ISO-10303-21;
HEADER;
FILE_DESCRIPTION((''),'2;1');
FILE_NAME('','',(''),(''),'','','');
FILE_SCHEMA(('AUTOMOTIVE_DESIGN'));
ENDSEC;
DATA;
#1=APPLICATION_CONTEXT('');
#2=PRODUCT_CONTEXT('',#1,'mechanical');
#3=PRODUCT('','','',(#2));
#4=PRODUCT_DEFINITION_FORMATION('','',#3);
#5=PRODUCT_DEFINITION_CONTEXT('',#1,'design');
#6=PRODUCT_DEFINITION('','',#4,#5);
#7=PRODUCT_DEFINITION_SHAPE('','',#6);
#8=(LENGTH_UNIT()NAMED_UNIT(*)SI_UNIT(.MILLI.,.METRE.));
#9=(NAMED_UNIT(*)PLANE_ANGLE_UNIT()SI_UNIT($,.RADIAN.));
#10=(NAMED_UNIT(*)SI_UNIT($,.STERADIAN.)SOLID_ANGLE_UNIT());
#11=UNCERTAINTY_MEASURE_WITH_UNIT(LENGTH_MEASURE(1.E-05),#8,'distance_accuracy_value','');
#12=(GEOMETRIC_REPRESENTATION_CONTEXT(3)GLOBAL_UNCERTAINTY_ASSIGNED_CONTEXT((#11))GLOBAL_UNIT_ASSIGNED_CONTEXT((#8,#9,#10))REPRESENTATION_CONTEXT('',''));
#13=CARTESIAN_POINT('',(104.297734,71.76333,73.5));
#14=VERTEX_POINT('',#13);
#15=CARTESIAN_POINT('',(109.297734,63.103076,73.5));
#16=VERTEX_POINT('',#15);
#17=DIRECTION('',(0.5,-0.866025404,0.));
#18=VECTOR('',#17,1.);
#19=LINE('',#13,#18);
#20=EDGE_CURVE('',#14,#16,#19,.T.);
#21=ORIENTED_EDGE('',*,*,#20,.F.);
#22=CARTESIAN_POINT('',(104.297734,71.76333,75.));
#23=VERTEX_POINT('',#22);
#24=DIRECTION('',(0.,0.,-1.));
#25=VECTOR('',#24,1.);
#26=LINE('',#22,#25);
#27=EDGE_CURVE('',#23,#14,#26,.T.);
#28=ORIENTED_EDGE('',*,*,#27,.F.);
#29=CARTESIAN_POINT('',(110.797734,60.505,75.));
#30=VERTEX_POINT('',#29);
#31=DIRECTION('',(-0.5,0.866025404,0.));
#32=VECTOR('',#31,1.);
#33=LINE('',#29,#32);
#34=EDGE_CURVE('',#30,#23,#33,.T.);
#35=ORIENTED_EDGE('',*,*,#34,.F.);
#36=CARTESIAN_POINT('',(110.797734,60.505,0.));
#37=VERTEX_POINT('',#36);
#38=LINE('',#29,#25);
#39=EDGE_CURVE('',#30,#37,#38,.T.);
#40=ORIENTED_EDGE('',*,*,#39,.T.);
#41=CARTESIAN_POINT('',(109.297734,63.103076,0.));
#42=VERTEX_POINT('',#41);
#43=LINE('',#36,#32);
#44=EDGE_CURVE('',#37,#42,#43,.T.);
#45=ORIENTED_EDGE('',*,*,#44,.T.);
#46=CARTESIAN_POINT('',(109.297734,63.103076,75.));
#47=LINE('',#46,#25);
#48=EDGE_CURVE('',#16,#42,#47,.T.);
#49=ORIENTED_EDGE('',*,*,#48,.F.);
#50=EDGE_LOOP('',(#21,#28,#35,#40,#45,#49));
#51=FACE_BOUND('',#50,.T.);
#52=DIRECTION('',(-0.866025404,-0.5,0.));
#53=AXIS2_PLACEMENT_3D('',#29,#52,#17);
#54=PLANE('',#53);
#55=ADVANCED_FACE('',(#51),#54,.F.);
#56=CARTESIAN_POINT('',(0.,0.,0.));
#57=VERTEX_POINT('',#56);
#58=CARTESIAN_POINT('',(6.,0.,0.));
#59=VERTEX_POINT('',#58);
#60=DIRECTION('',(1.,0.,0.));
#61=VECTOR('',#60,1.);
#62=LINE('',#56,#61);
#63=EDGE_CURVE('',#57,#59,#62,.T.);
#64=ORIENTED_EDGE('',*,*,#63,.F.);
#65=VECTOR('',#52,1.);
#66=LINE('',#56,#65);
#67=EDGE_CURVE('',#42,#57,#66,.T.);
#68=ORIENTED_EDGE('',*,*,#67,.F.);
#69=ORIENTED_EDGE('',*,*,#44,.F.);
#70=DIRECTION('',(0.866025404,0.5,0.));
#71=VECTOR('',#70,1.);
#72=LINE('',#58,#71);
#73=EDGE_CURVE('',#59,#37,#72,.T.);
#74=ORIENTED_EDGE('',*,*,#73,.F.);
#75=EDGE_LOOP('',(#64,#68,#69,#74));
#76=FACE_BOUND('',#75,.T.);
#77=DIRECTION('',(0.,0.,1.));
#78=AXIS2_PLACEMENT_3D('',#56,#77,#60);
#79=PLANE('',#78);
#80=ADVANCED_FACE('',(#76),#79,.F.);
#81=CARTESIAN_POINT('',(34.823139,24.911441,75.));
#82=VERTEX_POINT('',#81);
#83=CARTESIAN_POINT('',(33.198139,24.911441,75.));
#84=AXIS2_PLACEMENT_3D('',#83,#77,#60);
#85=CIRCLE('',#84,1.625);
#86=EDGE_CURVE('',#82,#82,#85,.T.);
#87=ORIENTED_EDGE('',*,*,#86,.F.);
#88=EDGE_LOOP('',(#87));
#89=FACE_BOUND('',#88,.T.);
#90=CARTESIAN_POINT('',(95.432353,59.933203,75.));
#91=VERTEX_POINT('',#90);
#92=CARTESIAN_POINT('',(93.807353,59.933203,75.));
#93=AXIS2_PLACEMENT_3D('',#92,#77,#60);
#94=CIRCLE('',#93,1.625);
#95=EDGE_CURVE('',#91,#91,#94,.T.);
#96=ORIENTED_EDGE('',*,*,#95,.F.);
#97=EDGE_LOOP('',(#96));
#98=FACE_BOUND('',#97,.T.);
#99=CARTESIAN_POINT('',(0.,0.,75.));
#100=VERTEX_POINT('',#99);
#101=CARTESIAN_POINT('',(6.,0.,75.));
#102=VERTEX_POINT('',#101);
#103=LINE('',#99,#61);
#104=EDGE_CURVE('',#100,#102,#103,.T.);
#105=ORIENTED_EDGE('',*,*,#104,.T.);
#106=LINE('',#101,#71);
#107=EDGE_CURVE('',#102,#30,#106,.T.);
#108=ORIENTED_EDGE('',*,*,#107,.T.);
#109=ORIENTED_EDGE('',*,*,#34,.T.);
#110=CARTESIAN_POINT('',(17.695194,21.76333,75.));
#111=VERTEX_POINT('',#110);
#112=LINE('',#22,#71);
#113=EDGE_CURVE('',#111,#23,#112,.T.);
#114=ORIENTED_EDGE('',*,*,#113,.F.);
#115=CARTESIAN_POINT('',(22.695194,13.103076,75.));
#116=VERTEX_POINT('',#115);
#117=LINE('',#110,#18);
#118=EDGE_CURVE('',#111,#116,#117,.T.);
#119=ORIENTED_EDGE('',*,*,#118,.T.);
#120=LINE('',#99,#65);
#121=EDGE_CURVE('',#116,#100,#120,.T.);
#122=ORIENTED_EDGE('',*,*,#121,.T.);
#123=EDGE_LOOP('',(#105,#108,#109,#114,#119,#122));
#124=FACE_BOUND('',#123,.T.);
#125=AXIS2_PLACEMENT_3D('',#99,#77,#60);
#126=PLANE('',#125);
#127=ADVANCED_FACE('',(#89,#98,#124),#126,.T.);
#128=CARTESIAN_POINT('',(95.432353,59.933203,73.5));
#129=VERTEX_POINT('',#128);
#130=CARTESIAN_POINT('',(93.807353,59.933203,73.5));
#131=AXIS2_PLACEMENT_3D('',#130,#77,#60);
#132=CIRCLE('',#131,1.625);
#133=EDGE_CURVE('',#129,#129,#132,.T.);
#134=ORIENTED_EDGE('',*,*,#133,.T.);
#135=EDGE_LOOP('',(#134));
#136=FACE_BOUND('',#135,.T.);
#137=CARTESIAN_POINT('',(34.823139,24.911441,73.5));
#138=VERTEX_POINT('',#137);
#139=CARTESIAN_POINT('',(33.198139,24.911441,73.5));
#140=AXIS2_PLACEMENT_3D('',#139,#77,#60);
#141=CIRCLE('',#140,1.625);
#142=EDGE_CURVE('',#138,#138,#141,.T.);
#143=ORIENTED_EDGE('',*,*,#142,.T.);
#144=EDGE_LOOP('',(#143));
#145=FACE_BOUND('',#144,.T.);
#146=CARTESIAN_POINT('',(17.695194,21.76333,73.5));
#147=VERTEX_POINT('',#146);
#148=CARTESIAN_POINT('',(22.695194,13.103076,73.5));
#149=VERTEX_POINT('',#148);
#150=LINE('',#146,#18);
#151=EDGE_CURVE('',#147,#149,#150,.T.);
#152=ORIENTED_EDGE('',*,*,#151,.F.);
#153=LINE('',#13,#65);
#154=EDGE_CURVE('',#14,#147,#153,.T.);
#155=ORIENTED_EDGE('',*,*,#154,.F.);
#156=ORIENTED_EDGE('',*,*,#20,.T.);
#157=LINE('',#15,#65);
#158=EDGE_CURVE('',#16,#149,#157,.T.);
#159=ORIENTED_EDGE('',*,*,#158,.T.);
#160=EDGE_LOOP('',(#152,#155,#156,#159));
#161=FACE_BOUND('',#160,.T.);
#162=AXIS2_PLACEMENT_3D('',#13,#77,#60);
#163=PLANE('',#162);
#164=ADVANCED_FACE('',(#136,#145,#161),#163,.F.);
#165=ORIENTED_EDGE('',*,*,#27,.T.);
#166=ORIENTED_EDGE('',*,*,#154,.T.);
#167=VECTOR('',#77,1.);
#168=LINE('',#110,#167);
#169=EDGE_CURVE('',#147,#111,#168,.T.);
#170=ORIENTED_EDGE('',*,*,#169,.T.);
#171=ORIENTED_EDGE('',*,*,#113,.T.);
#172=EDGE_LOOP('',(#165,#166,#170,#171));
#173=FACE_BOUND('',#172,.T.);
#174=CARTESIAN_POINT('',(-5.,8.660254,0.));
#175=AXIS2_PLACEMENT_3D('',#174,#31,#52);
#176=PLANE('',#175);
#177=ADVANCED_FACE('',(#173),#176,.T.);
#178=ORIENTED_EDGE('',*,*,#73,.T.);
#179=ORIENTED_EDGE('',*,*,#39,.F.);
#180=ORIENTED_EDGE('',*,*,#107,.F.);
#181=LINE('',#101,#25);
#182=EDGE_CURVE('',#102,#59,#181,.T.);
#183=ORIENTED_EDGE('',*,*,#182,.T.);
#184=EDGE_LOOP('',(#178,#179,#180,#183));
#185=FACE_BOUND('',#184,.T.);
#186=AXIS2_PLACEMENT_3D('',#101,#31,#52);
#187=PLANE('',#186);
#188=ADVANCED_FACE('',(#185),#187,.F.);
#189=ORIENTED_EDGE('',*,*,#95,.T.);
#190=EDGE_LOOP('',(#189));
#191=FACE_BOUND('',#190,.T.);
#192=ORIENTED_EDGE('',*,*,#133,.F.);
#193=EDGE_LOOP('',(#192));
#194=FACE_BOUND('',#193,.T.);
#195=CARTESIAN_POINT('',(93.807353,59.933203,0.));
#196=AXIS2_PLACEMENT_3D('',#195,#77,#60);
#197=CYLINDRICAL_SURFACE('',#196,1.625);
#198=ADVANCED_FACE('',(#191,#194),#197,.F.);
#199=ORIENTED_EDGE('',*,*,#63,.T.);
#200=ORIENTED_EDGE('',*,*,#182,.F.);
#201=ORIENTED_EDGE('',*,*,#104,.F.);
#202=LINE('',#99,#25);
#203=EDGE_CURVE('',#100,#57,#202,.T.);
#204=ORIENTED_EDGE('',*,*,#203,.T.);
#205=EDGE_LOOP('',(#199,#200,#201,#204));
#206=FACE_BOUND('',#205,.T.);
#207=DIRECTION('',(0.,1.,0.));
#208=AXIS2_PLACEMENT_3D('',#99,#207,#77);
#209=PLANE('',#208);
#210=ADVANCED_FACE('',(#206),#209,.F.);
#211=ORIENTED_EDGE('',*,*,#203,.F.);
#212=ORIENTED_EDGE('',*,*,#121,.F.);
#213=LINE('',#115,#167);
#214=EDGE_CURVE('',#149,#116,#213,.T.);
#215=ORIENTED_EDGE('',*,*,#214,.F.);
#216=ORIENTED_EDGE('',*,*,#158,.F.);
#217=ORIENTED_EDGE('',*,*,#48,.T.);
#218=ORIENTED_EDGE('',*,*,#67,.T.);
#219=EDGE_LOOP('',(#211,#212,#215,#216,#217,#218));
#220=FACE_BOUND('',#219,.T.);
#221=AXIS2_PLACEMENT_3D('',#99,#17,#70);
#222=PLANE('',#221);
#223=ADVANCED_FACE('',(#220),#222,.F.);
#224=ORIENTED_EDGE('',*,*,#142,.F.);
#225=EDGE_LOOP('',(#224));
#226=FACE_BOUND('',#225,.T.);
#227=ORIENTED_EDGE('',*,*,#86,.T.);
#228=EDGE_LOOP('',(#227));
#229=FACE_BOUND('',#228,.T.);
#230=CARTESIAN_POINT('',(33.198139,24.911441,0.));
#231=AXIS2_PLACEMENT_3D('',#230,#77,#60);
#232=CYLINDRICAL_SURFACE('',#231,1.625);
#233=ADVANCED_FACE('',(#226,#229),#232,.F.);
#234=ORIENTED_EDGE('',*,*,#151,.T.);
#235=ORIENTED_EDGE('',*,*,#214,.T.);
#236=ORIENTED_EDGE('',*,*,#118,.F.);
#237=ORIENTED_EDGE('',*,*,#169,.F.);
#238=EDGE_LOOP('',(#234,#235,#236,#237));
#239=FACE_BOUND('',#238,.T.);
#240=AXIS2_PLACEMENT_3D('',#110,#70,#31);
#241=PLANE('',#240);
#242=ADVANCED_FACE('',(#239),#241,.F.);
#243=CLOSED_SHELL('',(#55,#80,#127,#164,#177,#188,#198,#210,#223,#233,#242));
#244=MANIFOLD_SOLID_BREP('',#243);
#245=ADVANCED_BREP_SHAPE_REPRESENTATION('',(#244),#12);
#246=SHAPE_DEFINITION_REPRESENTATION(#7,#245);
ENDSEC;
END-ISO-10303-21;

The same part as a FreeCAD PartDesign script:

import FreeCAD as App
import Part
import Sketcher
Q = App.Units.Quantity

doc = App.newDocument("Part")
params = doc.addObject("Spreadsheet::Sheet", "Params")
for row, (alias, value) in enumerate([
    ("sketch1_width", "6 mm"),
    ("sketch1_length", "121.01 mm"),
    ("pad1_length", "75 mm"),
    ("sketch2_width", "100 mm"),
    ("sketch2_height", "1.5 mm"),
    ("pad2_length", "10 mm"),
    ("sketch3_diameter", "3.25 mm"),
], start=1):
    params.set(f"A{row}", alias)
    params.set(f"B{row}", "=" + value)
    params.setAlias(f"B{row}", alias)

body = doc.addObject("PartDesign::Body", "Body")

# Sketch on XY plane
sketch1 = body.newObject("Sketcher::SketchObject", "Sketch")
sketch1.AttachmentSupport = (doc.getObject("XY_Plane"), [""])
sketch1.MapMode = "FlatFace"
sketch1.addGeometry([
    Part.LineSegment(App.Vector(0, 0, 0), App.Vector(6, 0, 0)),
    Part.LineSegment(App.Vector(6, 0, 0), App.Vector(110.8, 60.5, 0)),
    Part.LineSegment(App.Vector(110.8, 60.5, 0), App.Vector(109.3, 63.1, 0)),
    Part.LineSegment(App.Vector(109.3, 63.1, 0), App.Vector(0, 0, 0)),
], False)
sketch1.addConstraint([
    Sketcher.Constraint("Coincident", 0, 2, 1, 1),
    Sketcher.Constraint("Coincident", 1, 2, 2, 1),
    Sketcher.Constraint("Coincident", 2, 2, 3, 1),
    Sketcher.Constraint("Coincident", 3, 2, 0, 1),
    Sketcher.Constraint("Horizontal", 0),
    Sketcher.Constraint("Coincident", 3, 2, -1, 1),
    Sketcher.Constraint("Perpendicular", 1, 2),
    Sketcher.Constraint("Perpendicular", 2, 3),
    Sketcher.Constraint("DistanceX", 0, 1, 0, 2, 6.0),
    Sketcher.Constraint("Angle", 1, Q("30 deg")),
    Sketcher.Constraint("Distance", 1, 121.01),
])
sketch1.setExpression("Constraints[8]", "Params.sketch1_width")
sketch1.setExpression("Constraints[10]", "Params.sketch1_length")
pad1 = body.newObject("PartDesign::Pad", "Pad")
pad1.Profile = sketch1
pad1.setExpression("Length", "Params.pad1_length")

# Sketch on an angled plane
sketch2 = body.newObject("Sketcher::SketchObject", "Sketch001")
sketch2.Placement = App.Placement(App.Vector(0, 0, 0), App.Rotation(App.Vector(0.866025404, 0.5, 0), App.Vector(0, 0, -1), App.Vector(-0.5, 0.866025404, 0), "ZXY"))
sketch2.addGeometry([
    Part.LineSegment(App.Vector(26.2, -73.5, 0), App.Vector(26.2, -75, 0)),
    Part.LineSegment(App.Vector(26.2, -75, 0), App.Vector(126.2, -75, 0)),
    Part.LineSegment(App.Vector(126.2, -75, 0), App.Vector(126.2, -73.5, 0)),
    Part.LineSegment(App.Vector(126.2, -73.5, 0), App.Vector(26.2, -73.5, 0)),
], False)
sketch2.addConstraint([
    Sketcher.Constraint("Coincident", 0, 2, 1, 1),
    Sketcher.Constraint("Coincident", 1, 2, 2, 1),
    Sketcher.Constraint("Coincident", 2, 2, 3, 1),
    Sketcher.Constraint("Coincident", 3, 2, 0, 1),
    Sketcher.Constraint("Vertical", 0),
    Sketcher.Constraint("Horizontal", 1),
    Sketcher.Constraint("Vertical", 2),
    Sketcher.Constraint("Horizontal", 3),
    Sketcher.Constraint("DistanceX", 1, 1, 1, 2, 100.0),
    Sketcher.Constraint("DistanceY", 0, 2, 0, 1, 1.5),
    Sketcher.Constraint("DistanceY", 0, 2, -1, 1, 75.0),
    Sketcher.Constraint("DistanceX", -1, 1, 0, 2, 26.206152),
])
sketch2.setExpression("Constraints[8]", "Params.sketch2_width")
sketch2.setExpression("Constraints[9]", "Params.sketch2_height")
pad2 = body.newObject("PartDesign::Pad", "Pad001")
pad2.Profile = sketch2
pad2.setExpression("Length", "Params.pad2_length")

# Sketch on XY plane
sketch3 = body.newObject("Sketcher::SketchObject", "Sketch002")
sketch3.AttachmentSupport = (doc.getObject("XY_Plane"), [""])
sketch3.MapMode = "FlatFace"
sketch3.AttachmentOffset = App.Placement(App.Vector(0, 0, 75), App.Rotation())
sketch3.addGeometry([
    Part.Circle(App.Vector(33.2, 24.9, 0), App.Vector(0, 0, 1), 1.6),
    Part.Circle(App.Vector(93.8, 59.9, 0), App.Vector(0, 0, 1), 1.6),
], False)
sketch3.addConstraint([
    Sketcher.Constraint("Equal", 0, 1),
    Sketcher.Constraint("Diameter", 0, 3.25),
    Sketcher.Constraint("DistanceX", -1, 1, 0, 3, 33.198139),
    Sketcher.Constraint("DistanceY", -1, 1, 0, 3, 24.911441),
    Sketcher.Constraint("DistanceY", 0, 3, 1, 3, 35.021762),
    Sketcher.Constraint("DistanceX", -1, 1, 1, 3, 93.807353),
])
sketch3.setExpression("Constraints[1]", "Params.sketch3_diameter")
pocket1 = body.newObject("PartDesign::Pocket", "Pocket")
pocket1.Profile = sketch3
pocket1.Type = "ThroughAll"

doc.recompute()
